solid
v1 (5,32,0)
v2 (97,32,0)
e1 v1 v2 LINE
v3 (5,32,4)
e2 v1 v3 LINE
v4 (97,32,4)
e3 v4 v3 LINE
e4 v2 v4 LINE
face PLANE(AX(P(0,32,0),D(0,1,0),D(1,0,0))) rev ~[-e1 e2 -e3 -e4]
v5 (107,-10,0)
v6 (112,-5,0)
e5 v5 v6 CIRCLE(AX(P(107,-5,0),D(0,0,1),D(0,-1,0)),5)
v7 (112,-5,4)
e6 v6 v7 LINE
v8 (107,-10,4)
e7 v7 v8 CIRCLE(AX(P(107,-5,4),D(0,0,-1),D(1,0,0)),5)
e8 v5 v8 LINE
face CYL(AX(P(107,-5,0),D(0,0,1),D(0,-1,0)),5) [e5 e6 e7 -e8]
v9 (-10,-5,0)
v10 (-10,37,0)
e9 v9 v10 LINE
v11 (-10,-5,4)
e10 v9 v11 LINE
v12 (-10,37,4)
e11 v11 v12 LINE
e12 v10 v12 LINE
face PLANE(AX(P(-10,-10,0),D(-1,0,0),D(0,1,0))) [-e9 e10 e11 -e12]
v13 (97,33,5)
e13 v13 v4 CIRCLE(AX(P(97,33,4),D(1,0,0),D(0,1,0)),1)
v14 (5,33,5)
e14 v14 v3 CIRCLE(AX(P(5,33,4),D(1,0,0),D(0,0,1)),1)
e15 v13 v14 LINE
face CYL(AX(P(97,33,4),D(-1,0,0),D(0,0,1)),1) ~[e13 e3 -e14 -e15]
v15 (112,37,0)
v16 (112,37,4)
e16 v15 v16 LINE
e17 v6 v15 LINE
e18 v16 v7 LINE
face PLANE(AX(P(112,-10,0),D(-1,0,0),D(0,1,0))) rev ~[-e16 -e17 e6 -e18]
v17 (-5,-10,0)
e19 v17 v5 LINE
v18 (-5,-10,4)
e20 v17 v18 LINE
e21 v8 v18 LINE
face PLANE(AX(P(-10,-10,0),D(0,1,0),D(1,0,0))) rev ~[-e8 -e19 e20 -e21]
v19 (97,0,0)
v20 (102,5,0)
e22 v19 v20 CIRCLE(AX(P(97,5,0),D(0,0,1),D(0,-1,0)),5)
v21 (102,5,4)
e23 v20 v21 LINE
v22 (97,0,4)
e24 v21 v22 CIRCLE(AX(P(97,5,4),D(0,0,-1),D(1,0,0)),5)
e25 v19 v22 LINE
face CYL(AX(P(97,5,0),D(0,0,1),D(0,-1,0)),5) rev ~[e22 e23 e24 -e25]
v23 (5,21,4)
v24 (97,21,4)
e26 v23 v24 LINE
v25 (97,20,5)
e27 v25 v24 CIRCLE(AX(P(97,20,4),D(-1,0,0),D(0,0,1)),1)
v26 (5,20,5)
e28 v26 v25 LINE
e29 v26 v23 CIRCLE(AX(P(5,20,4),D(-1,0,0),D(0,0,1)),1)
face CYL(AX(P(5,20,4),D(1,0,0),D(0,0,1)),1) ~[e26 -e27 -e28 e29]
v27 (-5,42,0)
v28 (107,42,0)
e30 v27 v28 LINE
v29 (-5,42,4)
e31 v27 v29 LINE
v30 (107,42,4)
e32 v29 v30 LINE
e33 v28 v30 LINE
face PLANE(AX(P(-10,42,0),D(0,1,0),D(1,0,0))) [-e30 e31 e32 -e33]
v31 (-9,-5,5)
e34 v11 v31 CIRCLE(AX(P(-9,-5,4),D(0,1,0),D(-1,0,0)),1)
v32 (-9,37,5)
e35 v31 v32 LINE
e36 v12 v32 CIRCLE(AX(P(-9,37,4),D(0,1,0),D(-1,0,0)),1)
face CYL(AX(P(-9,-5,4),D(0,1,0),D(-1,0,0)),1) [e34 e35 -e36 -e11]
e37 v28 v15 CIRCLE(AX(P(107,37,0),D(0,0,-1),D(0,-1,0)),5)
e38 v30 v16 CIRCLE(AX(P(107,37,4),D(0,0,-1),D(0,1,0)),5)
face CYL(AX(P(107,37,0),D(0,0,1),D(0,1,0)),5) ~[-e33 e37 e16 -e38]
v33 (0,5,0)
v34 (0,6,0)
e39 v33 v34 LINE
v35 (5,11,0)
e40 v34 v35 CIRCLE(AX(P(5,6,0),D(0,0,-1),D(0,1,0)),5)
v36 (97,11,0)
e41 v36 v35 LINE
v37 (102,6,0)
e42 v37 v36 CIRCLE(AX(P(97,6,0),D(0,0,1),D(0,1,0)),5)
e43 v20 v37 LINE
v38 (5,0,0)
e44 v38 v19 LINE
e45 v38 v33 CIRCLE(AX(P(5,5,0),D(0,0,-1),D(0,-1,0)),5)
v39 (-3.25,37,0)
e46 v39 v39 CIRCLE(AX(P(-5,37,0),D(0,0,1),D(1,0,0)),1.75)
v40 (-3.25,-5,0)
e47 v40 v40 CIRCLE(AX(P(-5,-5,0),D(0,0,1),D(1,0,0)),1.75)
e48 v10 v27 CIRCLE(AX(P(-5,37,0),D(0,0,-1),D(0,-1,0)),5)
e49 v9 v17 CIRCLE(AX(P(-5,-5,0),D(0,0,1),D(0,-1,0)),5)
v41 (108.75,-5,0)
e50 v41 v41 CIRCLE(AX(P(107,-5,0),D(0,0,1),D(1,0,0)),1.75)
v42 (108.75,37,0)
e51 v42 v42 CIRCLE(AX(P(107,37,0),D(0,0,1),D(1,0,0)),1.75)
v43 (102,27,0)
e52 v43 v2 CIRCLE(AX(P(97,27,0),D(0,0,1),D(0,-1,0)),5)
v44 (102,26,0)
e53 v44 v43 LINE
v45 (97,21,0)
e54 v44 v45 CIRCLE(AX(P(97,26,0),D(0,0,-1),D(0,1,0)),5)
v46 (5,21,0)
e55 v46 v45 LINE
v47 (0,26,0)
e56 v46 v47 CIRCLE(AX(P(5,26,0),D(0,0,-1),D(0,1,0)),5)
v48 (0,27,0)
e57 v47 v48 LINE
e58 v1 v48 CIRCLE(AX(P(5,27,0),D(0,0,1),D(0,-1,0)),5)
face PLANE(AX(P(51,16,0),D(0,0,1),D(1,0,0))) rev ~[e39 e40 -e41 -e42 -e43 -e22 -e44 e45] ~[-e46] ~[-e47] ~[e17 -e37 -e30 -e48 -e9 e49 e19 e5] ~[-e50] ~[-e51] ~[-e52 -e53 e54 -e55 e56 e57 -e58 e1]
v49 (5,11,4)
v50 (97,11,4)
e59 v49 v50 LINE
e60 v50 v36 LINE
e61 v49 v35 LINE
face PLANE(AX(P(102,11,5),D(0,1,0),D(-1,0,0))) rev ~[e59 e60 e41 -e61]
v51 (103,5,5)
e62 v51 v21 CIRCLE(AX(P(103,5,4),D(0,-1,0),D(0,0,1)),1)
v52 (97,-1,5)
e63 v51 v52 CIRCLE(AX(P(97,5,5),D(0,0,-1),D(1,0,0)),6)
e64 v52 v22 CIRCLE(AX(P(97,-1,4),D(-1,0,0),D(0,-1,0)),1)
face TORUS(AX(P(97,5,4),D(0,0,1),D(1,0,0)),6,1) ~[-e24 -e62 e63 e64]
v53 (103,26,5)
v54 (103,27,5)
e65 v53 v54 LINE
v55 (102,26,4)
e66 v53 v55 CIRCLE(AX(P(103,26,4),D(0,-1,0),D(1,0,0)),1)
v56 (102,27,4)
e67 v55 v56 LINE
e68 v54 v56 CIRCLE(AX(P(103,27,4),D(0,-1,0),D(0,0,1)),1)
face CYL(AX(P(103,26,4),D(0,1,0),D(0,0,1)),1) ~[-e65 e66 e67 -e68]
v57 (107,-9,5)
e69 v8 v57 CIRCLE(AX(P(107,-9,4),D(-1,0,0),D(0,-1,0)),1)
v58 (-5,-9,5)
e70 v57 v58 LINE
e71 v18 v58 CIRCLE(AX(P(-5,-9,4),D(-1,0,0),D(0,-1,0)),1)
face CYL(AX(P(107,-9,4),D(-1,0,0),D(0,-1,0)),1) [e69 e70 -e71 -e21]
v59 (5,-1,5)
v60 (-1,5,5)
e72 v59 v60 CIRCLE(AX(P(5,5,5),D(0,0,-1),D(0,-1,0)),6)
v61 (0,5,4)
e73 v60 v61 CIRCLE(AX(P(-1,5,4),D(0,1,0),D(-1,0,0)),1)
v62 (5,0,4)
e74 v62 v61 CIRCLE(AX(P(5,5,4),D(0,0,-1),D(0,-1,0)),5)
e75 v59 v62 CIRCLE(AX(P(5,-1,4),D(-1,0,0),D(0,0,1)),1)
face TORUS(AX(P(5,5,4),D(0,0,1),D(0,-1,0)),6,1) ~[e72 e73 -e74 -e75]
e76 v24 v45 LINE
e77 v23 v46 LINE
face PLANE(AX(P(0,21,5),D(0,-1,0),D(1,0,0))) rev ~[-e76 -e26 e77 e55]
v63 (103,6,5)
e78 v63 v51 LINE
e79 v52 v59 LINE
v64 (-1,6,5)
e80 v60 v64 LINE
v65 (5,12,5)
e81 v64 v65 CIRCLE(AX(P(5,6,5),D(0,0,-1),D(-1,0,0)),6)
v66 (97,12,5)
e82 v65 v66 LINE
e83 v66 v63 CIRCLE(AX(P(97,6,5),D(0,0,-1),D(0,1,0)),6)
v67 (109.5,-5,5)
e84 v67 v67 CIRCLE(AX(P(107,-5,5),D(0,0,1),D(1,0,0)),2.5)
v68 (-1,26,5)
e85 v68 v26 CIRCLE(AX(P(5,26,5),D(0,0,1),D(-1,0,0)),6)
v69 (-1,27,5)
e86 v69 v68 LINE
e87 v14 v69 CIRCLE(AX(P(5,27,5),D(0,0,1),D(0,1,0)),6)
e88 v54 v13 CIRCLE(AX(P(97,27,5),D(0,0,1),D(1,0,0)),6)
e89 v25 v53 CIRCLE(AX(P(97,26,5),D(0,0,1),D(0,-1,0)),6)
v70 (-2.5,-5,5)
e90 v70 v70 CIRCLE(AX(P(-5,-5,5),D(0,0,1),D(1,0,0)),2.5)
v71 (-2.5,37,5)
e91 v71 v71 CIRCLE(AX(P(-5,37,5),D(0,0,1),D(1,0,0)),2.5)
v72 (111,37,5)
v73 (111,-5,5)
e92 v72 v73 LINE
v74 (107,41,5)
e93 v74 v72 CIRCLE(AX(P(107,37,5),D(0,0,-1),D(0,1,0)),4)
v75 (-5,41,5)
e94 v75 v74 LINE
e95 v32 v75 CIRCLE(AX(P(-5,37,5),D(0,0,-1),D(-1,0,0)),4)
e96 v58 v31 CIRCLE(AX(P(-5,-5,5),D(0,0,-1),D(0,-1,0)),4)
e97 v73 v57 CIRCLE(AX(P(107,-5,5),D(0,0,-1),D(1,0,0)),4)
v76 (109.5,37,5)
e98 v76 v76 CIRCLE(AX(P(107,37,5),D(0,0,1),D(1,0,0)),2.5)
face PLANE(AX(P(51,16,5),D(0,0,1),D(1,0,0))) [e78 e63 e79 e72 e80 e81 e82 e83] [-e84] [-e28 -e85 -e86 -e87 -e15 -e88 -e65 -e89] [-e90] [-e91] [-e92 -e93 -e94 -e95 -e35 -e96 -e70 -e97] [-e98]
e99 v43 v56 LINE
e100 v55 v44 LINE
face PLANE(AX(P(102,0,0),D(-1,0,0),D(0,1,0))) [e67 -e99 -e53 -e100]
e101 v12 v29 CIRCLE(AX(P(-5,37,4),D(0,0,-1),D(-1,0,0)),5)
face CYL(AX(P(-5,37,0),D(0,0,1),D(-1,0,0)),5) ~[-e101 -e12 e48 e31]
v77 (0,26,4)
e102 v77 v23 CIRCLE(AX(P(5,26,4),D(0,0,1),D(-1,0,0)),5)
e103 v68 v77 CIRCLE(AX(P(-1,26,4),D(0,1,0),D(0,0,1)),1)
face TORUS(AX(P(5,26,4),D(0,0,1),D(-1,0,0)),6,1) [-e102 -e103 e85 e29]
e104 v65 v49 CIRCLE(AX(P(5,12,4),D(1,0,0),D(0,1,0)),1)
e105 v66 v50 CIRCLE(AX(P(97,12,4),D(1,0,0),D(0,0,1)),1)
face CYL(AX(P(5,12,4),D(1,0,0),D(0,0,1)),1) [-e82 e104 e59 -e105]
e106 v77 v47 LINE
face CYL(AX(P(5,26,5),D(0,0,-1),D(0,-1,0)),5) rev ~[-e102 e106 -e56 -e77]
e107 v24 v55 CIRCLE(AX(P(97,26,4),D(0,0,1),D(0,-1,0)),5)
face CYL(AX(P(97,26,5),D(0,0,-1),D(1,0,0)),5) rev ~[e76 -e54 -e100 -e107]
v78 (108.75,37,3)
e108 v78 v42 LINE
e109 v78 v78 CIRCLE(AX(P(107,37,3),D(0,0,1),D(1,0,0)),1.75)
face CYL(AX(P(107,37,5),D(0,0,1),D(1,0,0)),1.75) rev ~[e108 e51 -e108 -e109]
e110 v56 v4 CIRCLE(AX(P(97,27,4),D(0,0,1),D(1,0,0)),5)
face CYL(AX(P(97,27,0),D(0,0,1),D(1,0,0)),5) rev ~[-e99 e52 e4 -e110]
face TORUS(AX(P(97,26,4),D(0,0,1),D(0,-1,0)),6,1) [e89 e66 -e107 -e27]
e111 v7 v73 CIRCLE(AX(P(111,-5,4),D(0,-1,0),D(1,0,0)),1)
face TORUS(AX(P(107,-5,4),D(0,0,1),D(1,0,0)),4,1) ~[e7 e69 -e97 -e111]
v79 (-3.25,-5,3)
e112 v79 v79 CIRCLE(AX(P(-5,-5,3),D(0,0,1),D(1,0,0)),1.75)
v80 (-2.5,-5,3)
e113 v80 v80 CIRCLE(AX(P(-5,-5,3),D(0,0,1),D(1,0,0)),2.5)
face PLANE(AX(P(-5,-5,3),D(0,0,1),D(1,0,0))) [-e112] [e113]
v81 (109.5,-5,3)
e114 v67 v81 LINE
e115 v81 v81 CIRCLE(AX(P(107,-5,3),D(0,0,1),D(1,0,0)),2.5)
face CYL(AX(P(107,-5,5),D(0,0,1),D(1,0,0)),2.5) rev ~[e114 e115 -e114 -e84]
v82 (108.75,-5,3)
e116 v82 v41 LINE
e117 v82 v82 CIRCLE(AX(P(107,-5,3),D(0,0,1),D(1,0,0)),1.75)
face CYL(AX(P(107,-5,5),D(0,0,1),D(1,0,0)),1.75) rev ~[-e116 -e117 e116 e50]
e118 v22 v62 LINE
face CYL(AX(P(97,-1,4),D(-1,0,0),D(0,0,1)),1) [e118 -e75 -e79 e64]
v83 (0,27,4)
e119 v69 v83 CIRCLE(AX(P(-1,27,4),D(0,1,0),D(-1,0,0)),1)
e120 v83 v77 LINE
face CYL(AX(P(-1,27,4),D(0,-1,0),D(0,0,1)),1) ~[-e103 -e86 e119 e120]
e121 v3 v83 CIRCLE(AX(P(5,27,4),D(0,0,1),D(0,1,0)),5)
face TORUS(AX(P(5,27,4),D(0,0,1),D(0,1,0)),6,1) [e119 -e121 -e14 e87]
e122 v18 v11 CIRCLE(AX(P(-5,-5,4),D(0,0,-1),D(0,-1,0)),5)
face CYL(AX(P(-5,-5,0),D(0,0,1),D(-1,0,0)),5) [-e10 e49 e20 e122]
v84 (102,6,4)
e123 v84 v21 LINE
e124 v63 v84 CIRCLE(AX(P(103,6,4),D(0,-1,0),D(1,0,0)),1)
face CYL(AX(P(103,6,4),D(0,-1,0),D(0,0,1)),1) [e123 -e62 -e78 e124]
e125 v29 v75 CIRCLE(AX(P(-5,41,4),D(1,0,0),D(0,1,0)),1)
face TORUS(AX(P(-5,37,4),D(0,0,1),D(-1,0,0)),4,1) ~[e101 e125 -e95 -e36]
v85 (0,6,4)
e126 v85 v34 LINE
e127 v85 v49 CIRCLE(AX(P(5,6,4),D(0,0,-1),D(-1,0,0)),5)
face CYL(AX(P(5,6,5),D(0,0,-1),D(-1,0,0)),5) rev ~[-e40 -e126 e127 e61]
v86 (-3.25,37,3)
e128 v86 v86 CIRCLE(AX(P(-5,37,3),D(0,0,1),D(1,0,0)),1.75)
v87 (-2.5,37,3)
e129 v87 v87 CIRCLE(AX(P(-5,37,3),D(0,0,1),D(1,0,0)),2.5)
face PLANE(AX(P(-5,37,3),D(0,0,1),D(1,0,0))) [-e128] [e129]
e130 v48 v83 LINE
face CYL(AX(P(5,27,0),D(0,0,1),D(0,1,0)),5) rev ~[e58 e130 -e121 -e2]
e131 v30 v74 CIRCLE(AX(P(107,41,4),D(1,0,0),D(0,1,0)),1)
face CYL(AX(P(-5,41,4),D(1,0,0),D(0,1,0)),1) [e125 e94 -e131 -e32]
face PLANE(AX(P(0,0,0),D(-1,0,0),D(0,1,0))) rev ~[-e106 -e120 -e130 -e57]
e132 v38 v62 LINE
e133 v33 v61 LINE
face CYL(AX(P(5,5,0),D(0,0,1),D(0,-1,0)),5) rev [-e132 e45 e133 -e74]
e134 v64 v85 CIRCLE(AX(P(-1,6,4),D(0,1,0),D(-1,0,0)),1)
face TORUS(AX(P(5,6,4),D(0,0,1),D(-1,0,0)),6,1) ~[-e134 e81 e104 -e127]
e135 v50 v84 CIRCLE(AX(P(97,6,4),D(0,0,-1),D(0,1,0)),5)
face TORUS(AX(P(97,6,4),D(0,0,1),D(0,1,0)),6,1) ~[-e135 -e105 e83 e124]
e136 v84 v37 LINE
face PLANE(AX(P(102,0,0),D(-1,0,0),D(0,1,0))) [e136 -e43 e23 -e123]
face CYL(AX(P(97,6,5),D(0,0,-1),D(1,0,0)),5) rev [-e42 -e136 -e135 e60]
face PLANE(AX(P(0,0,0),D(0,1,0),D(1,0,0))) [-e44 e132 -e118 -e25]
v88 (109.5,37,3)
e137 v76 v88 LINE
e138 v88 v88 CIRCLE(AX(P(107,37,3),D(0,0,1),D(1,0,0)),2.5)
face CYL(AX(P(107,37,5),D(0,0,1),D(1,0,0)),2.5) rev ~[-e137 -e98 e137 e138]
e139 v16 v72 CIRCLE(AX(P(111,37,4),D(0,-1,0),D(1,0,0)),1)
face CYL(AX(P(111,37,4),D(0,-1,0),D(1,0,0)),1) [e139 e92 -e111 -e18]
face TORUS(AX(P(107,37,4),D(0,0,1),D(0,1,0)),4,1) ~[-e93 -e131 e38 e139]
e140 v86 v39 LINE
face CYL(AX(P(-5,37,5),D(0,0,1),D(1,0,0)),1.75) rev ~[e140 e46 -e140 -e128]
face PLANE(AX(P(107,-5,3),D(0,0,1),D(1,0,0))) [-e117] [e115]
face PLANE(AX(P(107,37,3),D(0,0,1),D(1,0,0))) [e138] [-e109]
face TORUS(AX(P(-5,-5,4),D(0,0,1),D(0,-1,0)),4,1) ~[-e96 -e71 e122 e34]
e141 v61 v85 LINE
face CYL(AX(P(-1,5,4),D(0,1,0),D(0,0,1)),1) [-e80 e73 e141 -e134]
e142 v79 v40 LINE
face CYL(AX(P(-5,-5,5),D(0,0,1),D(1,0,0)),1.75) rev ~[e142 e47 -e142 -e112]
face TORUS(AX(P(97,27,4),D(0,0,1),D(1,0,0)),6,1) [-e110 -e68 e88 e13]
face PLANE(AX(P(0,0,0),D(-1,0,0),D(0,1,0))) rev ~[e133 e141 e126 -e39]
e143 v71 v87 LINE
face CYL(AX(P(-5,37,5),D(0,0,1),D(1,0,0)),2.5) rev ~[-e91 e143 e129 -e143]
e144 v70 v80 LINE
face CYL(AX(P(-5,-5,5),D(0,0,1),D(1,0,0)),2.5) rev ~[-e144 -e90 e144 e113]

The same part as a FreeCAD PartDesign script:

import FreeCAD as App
import Part
import Sketcher
from FreeCAD import Vector


def edges_at(feature, points):
    """Names of the edges that pass closest to the given points."""
    edges = feature.Shape.Edges
    near = lambda p: min(range(len(edges)), key=lambda i: edges[i].distToShape(Part.Vertex(*p))[0])
    return sorted({f"Edge{near(p) + 1}" for p in points})


def add_polygon(sketch, points):
    """Adds a closed chain of lines whose ends are joined by coincident constraints."""
    first, n = sketch.GeometryCount, len(points)
    for a, b in zip(points, points[1:] + points[:1]):
        sketch.addGeometry(Part.LineSegment(App.Vector(*a, 0), App.Vector(*b, 0)), False)
    for i in range(n):
        sketch.addConstraint(Sketcher.Constraint("Coincident", first + i, 2, first + (i + 1) % n, 1))

doc = App.newDocument("Part")
body = doc.addObject("PartDesign::Body", "Body")

# Sketch on XY plane
sketch1 = body.newObject("Sketcher::SketchObject", "Sketch")
sketch1.AttachmentSupport = (doc.getObject("XY_Plane"), [""])
sketch1.MapMode = "FlatFace"
add_polygon(sketch1, [(-10, 42), (-10, -10), (112, -10), (112, 42)])  # lines 0-3
add_polygon(sketch1, [(102, 0), (0, 0), (0, 32), (102, 32)])  # lines 4-7
sketch1.addConstraint([
    Sketcher.Constraint("Vertical", 0),
    Sketcher.Constraint("Horizontal", 1),
    Sketcher.Constraint("Vertical", 2),
    Sketcher.Constraint("Horizontal", 3),
    Sketcher.Constraint("Horizontal", 4),
    Sketcher.Constraint("Vertical", 5),
    Sketcher.Constraint("Horizontal", 6),
    Sketcher.Constraint("Vertical", 7),
    Sketcher.Constraint("Coincident", 4, 2, -1, 1),
    Sketcher.Constraint("DistanceX", 1, 1, 1, 2, 122.0),
    Sketcher.Constraint("DistanceX", 4, 2, 4, 1, 102.0),
    Sketcher.Constraint("DistanceY", 0, 2, 0, 1, 52.0),
    Sketcher.Constraint("DistanceY", 5, 1, 5, 2, 32.0),
    Sketcher.Constraint("DistanceX", 0, 2, -1, 1, 10.0),
    Sketcher.Constraint("DistanceY", 0, 2, -1, 1, 10.0),
])
pad1 = body.newObject("PartDesign::Pad", "Pad")
pad1.Profile = sketch1
pad1.Length = 5

# Sketch on XY plane
sketch2 = body.newObject("Sketcher::SketchObject", "Sketch001")
sketch2.AttachmentSupport = (doc.getObject("XY_Plane"), [""])
sketch2.MapMode = "FlatFace"
sketch2.AttachmentOffset = App.Placement(Vector(0, 0, 5), App.Rotation())
add_polygon(sketch2, [(102, 21), (0, 21), (0, 11), (102, 11)])  # lines 0-3
sketch2.addConstraint([
    Sketcher.Constraint("Horizontal", 0),
    Sketcher.Constraint("Vertical", 1),
    Sketcher.Constraint("Horizontal", 2),
    Sketcher.Constraint("Vertical", 3),
    Sketcher.Constraint("PointOnObject", 0, 2, -2),
    Sketcher.Constraint("DistanceX", 0, 2, 0, 1, 102.0),
    Sketcher.Constraint("DistanceY", 1, 2, 1, 1, 10.0),
    Sketcher.Constraint("DistanceY", -1, 1, 0, 2, 21.0),
])
pad2 = body.newObject("PartDesign::Pad", "Pad001")
pad2.Profile = sketch2
pad2.Length = 5
pad2.Reversed = True

# Sketch on XY plane
sketch3 = body.newObject("Sketcher::SketchObject", "Sketch002")
sketch3.AttachmentSupport = (doc.getObject("XY_Plane"), [""])
sketch3.MapMode = "FlatFace"
sketch3.AttachmentOffset = App.Placement(Vector(0, 0, 5), App.Rotation())
sketch3.addGeometry([
    Part.Circle(Vector(-5, 37, 0), Vector(0, 0, 1), 1.75),
    Part.Circle(Vector(107, 37, 0), Vector(0, 0, 1), 1.75),
    Part.Circle(Vector(107, -5, 0), Vector(0, 0, 1), 1.75),
    Part.Circle(Vector(-5, -5, 0), Vector(0, 0, 1), 1.75),
], False)
sketch3.addConstraint([
    Sketcher.Constraint("Equal", 0, 1),
    Sketcher.Constraint("Equal", 1, 2),
    Sketcher.Constraint("Equal", 2, 3),
    Sketcher.Constraint("Horizontal", 0, 3, 1, 3),
    Sketcher.Constraint("Horizontal", 2, 3, 3, 3),
    Sketcher.Constraint("Vertical", 1, 3, 2, 3),
    Sketcher.Constraint("Vertical", 0, 3, 3, 3),
    Sketcher.Constraint("Diameter", 0, 3.5),
    Sketcher.Constraint("DistanceX", 0, 3, -1, 1, 5.0),
    Sketcher.Constraint("DistanceY", -1, 1, 0, 3, 37.0),
    Sketcher.Constraint("DistanceX", -1, 1, 1, 3, 107.0),
    Sketcher.Constraint("DistanceY", 2, 3, -1, 1, 5.0),
])
pocket1 = body.newObject("PartDesign::Pocket", "Pocket")
pocket1.Profile = sketch3
pocket1.Type = "ThroughAll"

# Sketch on XY plane
sketch4 = body.newObject("Sketcher::SketchObject", "Sketch003")
sketch4.AttachmentSupport = (doc.getObject("XY_Plane"), [""])
sketch4.MapMode = "FlatFace"
sketch4.AttachmentOffset = App.Placement(Vector(0, 0, 5), App.Rotation())
sketch4.addGeometry([
    Part.Circle(Vector(-5, 37, 0), Vector(0, 0, 1), 2.5),
    Part.Circle(Vector(107, 37, 0), Vector(0, 0, 1), 2.5),
    Part.Circle(Vector(107, -5, 0), Vector(0, 0, 1), 2.5),
    Part.Circle(Vector(-5, -5, 0), Vector(0, 0, 1), 2.5),
], False)
sketch4.addConstraint([
    Sketcher.Constraint("Equal", 0, 1),
    Sketcher.Constraint("Equal", 1, 2),
    Sketcher.Constraint("Equal", 2, 3),
    Sketcher.Constraint("Horizontal", 0, 3, 1, 3),
    Sketcher.Constraint("Horizontal", 2, 3, 3, 3),
    Sketcher.Constraint("Vertical", 1, 3, 2, 3),
    Sketcher.Constraint("Vertical", 0, 3, 3, 3),
    Sketcher.Constraint("Diameter", 0, 5.0),
    Sketcher.Constraint("DistanceX", 0, 3, -1, 1, 5.0),
    Sketcher.Constraint("DistanceY", -1, 1, 0, 3, 37.0),
    Sketcher.Constraint("DistanceX", -1, 1, 1, 3, 107.0),
    Sketcher.Constraint("DistanceY", 2, 3, -1, 1, 5.0),
])
pocket2 = body.newObject("PartDesign::Pocket", "Pocket001")
pocket2.Profile = sketch4
pocket2.Length = 2
doc.recompute()

fillet = body.newObject("PartDesign::Fillet", "Fillet")
fillet.Base = (pocket2, edges_at(pocket2, [
    (0, 32, 2.5),
    (0, 0, 2.5),
    (102, 0, 2.5),
    (102, 32, 2.5),
    (0, 11, 2.5),
    (0, 21, 2.5),
    (102, 21, 2.5),
    (102, 11, 2.5),
    (-10, 42, 2.5),
    (112, 42, 2.5),
    (112, -10, 2.5),
    (-10, -10, 2.5),
]))
fillet.Radius = 5
doc.recompute()

fillet2 = body.newObject("PartDesign::Fillet", "Fillet001")
fillet2.Base = (fillet, edges_at(fillet, [
    (51, 21, 5),
    (0, 26.5, 5),
    (102, 26.5, 5),
    (51, 32, 5),
    (-10, 16, 5),
    (51, 42, 5),
    (51, -10, 5),
    (112, 16, 5),
    (-8.536, -8.536, 5),
    (110.536, -8.536, 5),
    (110.536, 40.536, 5),
    (-8.536, 40.536, 5),
    (1.464, 9.536, 5),
    (100.536, 1.464, 5),
    (100.536, 9.536, 5),
    (1.464, 1.464, 5),
    (1.464, 22.464, 5),
    (100.536, 22.464, 5),
    (100.536, 30.536, 5),
    (1.464, 30.536, 5),
    (0, 5.5, 5),
    (51, 11, 5),
    (51, 0, 5),
    (102, 5.5, 5),
]))
fillet2.Radius = 1

doc.recompute()
